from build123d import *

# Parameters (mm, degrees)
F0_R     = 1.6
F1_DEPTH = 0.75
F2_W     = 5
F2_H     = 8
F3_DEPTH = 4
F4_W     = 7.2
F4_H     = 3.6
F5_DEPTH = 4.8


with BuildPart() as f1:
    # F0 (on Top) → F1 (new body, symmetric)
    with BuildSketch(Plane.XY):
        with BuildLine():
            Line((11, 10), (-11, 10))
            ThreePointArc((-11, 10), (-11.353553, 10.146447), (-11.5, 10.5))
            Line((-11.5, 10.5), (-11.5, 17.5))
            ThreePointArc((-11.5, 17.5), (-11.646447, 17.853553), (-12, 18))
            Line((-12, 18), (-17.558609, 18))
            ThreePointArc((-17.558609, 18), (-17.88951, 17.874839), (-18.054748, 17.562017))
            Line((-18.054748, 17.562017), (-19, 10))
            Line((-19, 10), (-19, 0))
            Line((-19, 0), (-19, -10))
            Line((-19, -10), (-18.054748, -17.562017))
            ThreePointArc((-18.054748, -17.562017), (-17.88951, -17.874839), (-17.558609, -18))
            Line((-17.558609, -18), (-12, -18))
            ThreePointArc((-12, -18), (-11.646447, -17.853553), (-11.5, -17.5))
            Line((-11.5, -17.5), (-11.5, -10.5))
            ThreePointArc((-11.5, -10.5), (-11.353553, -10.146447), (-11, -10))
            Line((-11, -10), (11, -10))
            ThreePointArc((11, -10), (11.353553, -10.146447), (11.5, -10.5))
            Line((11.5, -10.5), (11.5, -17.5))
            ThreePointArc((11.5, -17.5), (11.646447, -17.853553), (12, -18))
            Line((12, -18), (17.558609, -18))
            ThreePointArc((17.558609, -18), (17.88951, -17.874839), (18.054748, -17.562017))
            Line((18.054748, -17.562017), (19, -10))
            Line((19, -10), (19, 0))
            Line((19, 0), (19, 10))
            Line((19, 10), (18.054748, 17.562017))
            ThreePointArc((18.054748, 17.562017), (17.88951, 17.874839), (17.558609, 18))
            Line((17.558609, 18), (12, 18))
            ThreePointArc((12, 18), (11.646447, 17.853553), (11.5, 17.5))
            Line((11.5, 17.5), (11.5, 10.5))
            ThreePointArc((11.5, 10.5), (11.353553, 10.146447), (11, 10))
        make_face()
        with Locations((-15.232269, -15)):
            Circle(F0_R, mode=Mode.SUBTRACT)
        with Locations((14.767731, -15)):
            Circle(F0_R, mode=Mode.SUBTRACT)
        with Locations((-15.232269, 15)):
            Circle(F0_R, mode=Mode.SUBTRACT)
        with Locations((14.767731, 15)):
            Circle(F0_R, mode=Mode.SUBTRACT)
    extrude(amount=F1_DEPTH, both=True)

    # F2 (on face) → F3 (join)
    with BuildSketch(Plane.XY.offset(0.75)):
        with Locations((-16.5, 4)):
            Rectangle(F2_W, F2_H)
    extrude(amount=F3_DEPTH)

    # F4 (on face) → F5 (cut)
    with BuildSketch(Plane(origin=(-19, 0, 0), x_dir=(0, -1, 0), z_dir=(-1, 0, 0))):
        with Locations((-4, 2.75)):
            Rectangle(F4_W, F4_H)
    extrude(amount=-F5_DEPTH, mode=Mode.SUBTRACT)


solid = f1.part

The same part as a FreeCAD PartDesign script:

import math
import FreeCAD as App
import Part
import Sketcher
from FreeCAD import Vector
Q = App.Units.Quantity

doc = App.newDocument("Part")
params = doc.addObject("Spreadsheet::Sheet", "Params")
for row, (alias, value) in enumerate([
    ("sketch1_diameter", "3.2 mm"),
    ("sketch1_radius", "0.500001 mm"),
    ("sketch1_width", "22 mm"),
    ("sketch1_height", "7 mm"),
    ("sketch1_height2", "20 mm"),
    ("pad1_length", "1.5 mm"),
    ("sketch2_width", "5 mm"),
    ("sketch2_height", "8 mm"),
    ("pad2_length", "4 mm"),
    ("sketch3_width", "7.2 mm"),
    ("sketch3_height", "3.6 mm"),
    ("pocket1_length", "4.8 mm"),
], start=1):
    params.set(f"A{row}", alias)
    params.set(f"B{row}", "=" + value)
    params.setAlias(f"B{row}", alias)

body = doc.addObject("PartDesign::Body", "Body")

# Sketch on XY plane
sketch1 = doc.addObject("Sketcher::SketchObject", "Sketch")
body.addObject(sketch1)
sketch1.AttachmentSupport = (doc.XY_Plane, [""])
sketch1.MapMode = "FlatFace"
sketch1.addGeometry(Part.LineSegment(Vector(11, 10, 0), Vector(-11, 10, 0)), False)
sketch1.addGeometry(Part.ArcOfCircle(Part.Circle(Vector(-10.999999, 10.500001, 0), Vector(0, 0, 1), 0.500001), math.radians(-179.999847), math.radians(-90.000153)), False)
sketch1.addGeometry(Part.LineSegment(Vector(-11.5, 10.5, 0), Vector(-11.5, 17.5, 0)), False)
sketch1.addGeometry(Part.ArcOfCircle(Part.Circle(Vector(-12.000001, 17.499999, 0), Vector(0, 0, 1), 0.500001), math.radians(0.000153), math.radians(89.999847)), False)
sketch1.addGeometry(Part.LineSegment(Vector(-12, 18, 0), Vector(-17.558609, 18, 0)), False)
sketch1.addGeometry(Part.ArcOfCircle(Part.Circle(Vector(-17.558608, 17.499999, 0), Vector(0, 0, 1), 0.500001), math.radians(90.000078), math.radians(172.874946)), False)
sketch1.addGeometry(Part.LineSegment(Vector(-18.054748, 17.562017, 0), Vector(-19, 10, 0)), False)
sketch1.addGeometry(Part.LineSegment(Vector(-19, 10, 0), Vector(-19, -10, 0)), False)
sketch1.addGeometry(Part.LineSegment(Vector(-19, -10, 0), Vector(-18.054748, -17.562017, 0)), False)
sketch1.addGeometry(Part.ArcOfCircle(Part.Circle(Vector(-17.558608, -17.499999, 0), Vector(0, 0, 1), 0.500001), math.radians(-172.874946), math.radians(-90.000078)), False)
sketch1.addGeometry(Part.LineSegment(Vector(-17.558609, -18, 0), Vector(-12, -18, 0)), False)
sketch1.addGeometry(Part.ArcOfCircle(Part.Circle(Vector(-12.000001, -17.499999, 0), Vector(0, 0, 1), 0.500001), math.radians(-89.999847), math.radians(-0.000153)), False)
sketch1.addGeometry(Part.LineSegment(Vector(-11.5, -17.5, 0), Vector(-11.5, -10.5, 0)), False)
sketch1.addGeometry(Part.ArcOfCircle(Part.Circle(Vector(-10.999999, -10.500001, 0), Vector(0, 0, 1), 0.500001), math.radians(90.000153), math.radians(179.999847)), False)
sketch1.addGeometry(Part.LineSegment(Vector(-11, -10, 0), Vector(11, -10, 0)), False)
sketch1.addGeometry(Part.ArcOfCircle(Part.Circle(Vector(10.999999, -10.500001, 0), Vector(0, 0, 1), 0.500001), math.radians(0.000153), math.radians(89.999847)), False)
sketch1.addGeometry(Part.LineSegment(Vector(11.5, -10.5, 0), Vector(11.5, -17.5, 0)), False)
sketch1.addGeometry(Part.ArcOfCircle(Part.Circle(Vector(12.000001, -17.499999, 0), Vector(0, 0, 1), 0.500001), math.radians(-179.999847), math.radians(-90.000153)), False)
sketch1.addGeometry(Part.LineSegment(Vector(12, -18, 0), Vector(17.558609, -18, 0)), False)
sketch1.addGeometry(Part.ArcOfCircle(Part.Circle(Vector(17.558608, -17.499999, 0), Vector(0, 0, 1), 0.500001), math.radians(-89.999922), math.radians(-7.125054)), False)
sketch1.addGeometry(Part.LineSegment(Vector(18.054748, -17.562017, 0), Vector(19, -10, 0)), False)
sketch1.addGeometry(Part.LineSegment(Vector(19, -10, 0), Vector(19, 10, 0)), False)
sketch1.addGeometry(Part.LineSegment(Vector(19, 10, 0), Vector(18.054748, 17.562017, 0)), False)
sketch1.addGeometry(Part.ArcOfCircle(Part.Circle(Vector(17.558608, 17.499999, 0), Vector(0, 0, 1), 0.500001), math.radians(7.125054), math.radians(89.999922)), False)
sketch1.addGeometry(Part.LineSegment(Vector(17.558609, 18, 0), Vector(12, 18, 0)), False)
sketch1.addGeometry(Part.ArcOfCircle(Part.Circle(Vector(12.000001, 17.499999, 0), Vector(0, 0, 1), 0.500001), math.radians(90.000153), math.radians(179.999847)), False)
sketch1.addGeometry(Part.LineSegment(Vector(11.5, 17.5, 0), Vector(11.5, 10.5, 0)), False)
sketch1.addGeometry(Part.ArcOfCircle(Part.Circle(Vector(10.999999, 10.500001, 0), Vector(0, 0, 1), 0.500001), math.radians(-89.999847), math.radians(-0.000153)), False)
sketch1.addGeometry(Part.Circle(Vector(-15.232269, -15, 0), Vector(0, 0, 1), 1.6), False)
sketch1.addGeometry(Part.Circle(Vector(14.767731, -15, 0), Vector(0, 0, 1), 1.6), False)
sketch1.addGeometry(Part.Circle(Vector(-15.232269, 15, 0), Vector(0, 0, 1), 1.6), False)
sketch1.addGeometry(Part.Circle(Vector(14.767731, 15, 0), Vector(0, 0, 1), 1.6), False)
sketch1.addConstraint(Sketcher.Constraint("Coincident", 0, 2, 1, 2))
sketch1.addConstraint(Sketcher.Constraint("Coincident", 1, 1, 2, 1))
sketch1.addConstraint(Sketcher.Constraint("Coincident", 2, 2, 3, 1))
sketch1.addConstraint(Sketcher.Constraint("Coincident", 3, 2, 4, 1))
sketch1.addConstraint(Sketcher.Constraint("Tangent", 4, 2, 5, 1))
sketch1.addConstraint(Sketcher.Constraint("Tangent", 5, 2, 6, 1))
sketch1.addConstraint(Sketcher.Constraint("Coincident", 6, 2, 7, 1))
sketch1.addConstraint(Sketcher.Constraint("Coincident", 7, 2, 8, 1))
sketch1.addConstraint(Sketcher.Constraint("Tangent", 8, 2, 9, 1))
sketch1.addConstraint(Sketcher.Constraint("Tangent", 9, 2, 10, 1))
sketch1.addConstraint(Sketcher.Constraint("Coincident", 10, 2, 11, 1))
sketch1.addConstraint(Sketcher.Constraint("Coincident", 11, 2, 12, 1))
sketch1.addConstraint(Sketcher.Constraint("Coincident", 12, 2, 13, 2))
sketch1.addConstraint(Sketcher.Constraint("Coincident", 13, 1, 14, 1))
sketch1.addConstraint(Sketcher.Constraint("Coincident", 14, 2, 15, 2))
sketch1.addConstraint(Sketcher.Constraint("Coincident", 15, 1, 16, 1))
sketch1.addConstraint(Sketcher.Constraint("Coincident", 16, 2, 17, 1))
sketch1.addConstraint(Sketcher.Constraint("Coincident", 17, 2, 18, 1))
sketch1.addConstraint(Sketcher.Constraint("Tangent", 18, 2, 19, 1))
sketch1.addConstraint(Sketcher.Constraint("Tangent", 19, 2, 20, 1))
sketch1.addConstraint(Sketcher.Constraint("Coincident", 20, 2, 21, 1))
sketch1.addConstraint(Sketcher.Constraint("Coincident", 21, 2, 22, 1))
sketch1.addConstraint(Sketcher.Constraint("Tangent", 22, 2, 23, 1))
sketch1.addConstraint(Sketcher.Constraint("Tangent", 23, 2, 24, 1))
sketch1.addConstraint(Sketcher.Constraint("Coincident", 24, 2, 25, 1))
sketch1.addConstraint(Sketcher.Constraint("Coincident", 25, 2, 26, 1))
sketch1.addConstraint(Sketcher.Constraint("Coincident", 26, 2, 27, 2))
sketch1.addConstraint(Sketcher.Constraint("Coincident", 27, 1, 0, 1))
sketch1.addConstraint(Sketcher.Constraint("Horizontal", 0))
sketch1.addConstraint(Sketcher.Constraint("Vertical", 2))
sketch1.addConstraint(Sketcher.Constraint("Horizontal", 4))
sketch1.addConstraint(Sketcher.Constraint("Vertical", 7))
sketch1.addConstraint(Sketcher.Constraint("Horizontal", 10))
sketch1.addConstraint(Sketcher.Constraint("Vertical", 12))
sketch1.addConstraint(Sketcher.Constraint("Horizontal", 14))
sketch1.addConstraint(Sketcher.Constraint("Vertical", 16))
sketch1.addConstraint(Sketcher.Constraint("Horizontal", 18))
sketch1.addConstraint(Sketcher.Constraint("Vertical", 21))
sketch1.addConstraint(Sketcher.Constraint("Horizontal", 24))
sketch1.addConstraint(Sketcher.Constraint("Vertical", 26))
sketch1.addConstraint(Sketcher.Constraint("Equal", 1, 3))
sketch1.addConstraint(Sketcher.Constraint("Equal", 3, 5))
sketch1.addConstraint(Sketcher.Constraint("Equal", 5, 9))
sketch1.addConstraint(Sketcher.Constraint("Equal", 9, 11))
sketch1.addConstraint(Sketcher.Constraint("Equal", 11, 13))
sketch1.addConstraint(Sketcher.Constraint("Equal", 13, 15))
sketch1.addConstraint(Sketcher.Constraint("Equal", 15, 17))
sketch1.addConstraint(Sketcher.Constraint("Equal", 17, 19))
sketch1.addConstraint(Sketcher.Constraint("Equal", 19, 23))
sketch1.addConstraint(Sketcher.Constraint("Equal", 23, 25))
sketch1.addConstraint(Sketcher.Constraint("Equal", 25, 27))
sketch1.addConstraint(Sketcher.Constraint("Equal", 28, 29))
sketch1.addConstraint(Sketcher.Constraint("Equal", 29, 30))
sketch1.addConstraint(Sketcher.Constraint("Equal", 30, 31))
sketch1.addConstraint(Sketcher.Constraint("Symmetric", 1, 3, 15, 3, -1, 1))
sketch1.addConstraint(Sketcher.Constraint("Symmetric", 5, 3, 19, 3, -1, 1))
sketch1.addConstraint(Sketcher.Constraint("Symmetric", 9, 3, 23, 3, -1, 1))
sketch1.addConstraint(Sketcher.Constraint("Symmetric", 6, 2, 20, 2, -1, 1))
sketch1.addConstraint(Sketcher.Constraint("Symmetric", 11, 2, 25, 2, -1, 1))
sketch1.addConstraint(Sketcher.Constraint("Symmetric", 11, 3, 17, 3, -2))
sketch1.addConstraint(Sketcher.Constraint("Symmetric", 8, 2, 19, 2, -2))
sketch1.addConstraint(Sketcher.Constraint("Symmetric", 28, 3, 30, 3, -1))
sketch1.addConstraint(Sketcher.Constraint("Symmetric", 29, 3, 31, 3, -1))
sketch1.addConstraint(Sketcher.Constraint("Parallel", 8, 22))
sketch1.addConstraint(Sketcher.Constraint("Horizontal", 28, 3, 29, 3))
sketch1.addConstraint(Sketcher.Constraint("Horizontal", 27, 3, 1, 1))
sketch1.addConstraint(Sketcher.Constraint("Horizontal", 25, 3, 2, 2))
sketch1.addConstraint(Sketcher.Constraint("Horizontal", 0, 2, 6, 2))
sketch1.addConstraint(Sketcher.Constraint("Horizontal", 19, 3, 11, 2))
sketch1.addConstraint(Sketcher.Constraint("Horizontal", 15, 3, 12, 2))
sketch1.addConstraint(Sketcher.Constraint("Horizontal", 12, 2, 15, 1))
sketch1.addConstraint(Sketcher.Constraint("Horizontal", 11, 2, 16, 2))
sketch1.addConstraint(Sketcher.Constraint("Horizontal", 1, 1, 26, 2))
sketch1.addConstraint(Sketcher.Constraint("Vertical", 13, 3, 0, 2))
sketch1.addConstraint(Sketcher.Constraint("Vertical", 11, 3, 3, 2))
sketch1.addConstraint(Sketcher.Constraint("Vertical", 3, 2, 10, 2))
sketch1.addConstraint(Sketcher.Constraint("Vertical", 0, 2, 13, 1))
sketch1.addConstraint(Sketcher.Constraint("Vertical", 27, 3, 14, 2))
sketch1.addConstraint(Sketcher.Constraint("Vertical", 25, 3, 17, 2))
sketch1.addConstraint(Sketcher.Constraint("Vertical", 17, 2, 24, 2))
sketch1.addConstraint(Sketcher.Constraint("Vertical", 14, 2, 27, 1))
sketch1.addConstraint(Sketcher.Constraint("Diameter", 28, Q("3.2 mm")))
sketch1.addConstraint(Sketcher.Constraint("Radius", 1, Q("0.500001 mm")))
sketch1.addConstraint(Sketcher.Constraint("DistanceX", 0, 2, 0, 1, Q("22 mm")))
sketch1.addConstraint(Sketcher.Constraint("DistanceY", 2, 1, 2, 2, Q("7 mm")))
sketch1.addConstraint(Sketcher.Constraint("DistanceY", 7, 2, 7, 1, Q("20 mm")))
sketch1.addConstraint(Sketcher.Constraint("DistanceY", 28, 3, -1, 1, Q("15 mm")))
sketch1.addConstraint(Sketcher.Constraint("DistanceX", 6, 2, -1, 1, Q("19 mm")))
sketch1.addConstraint(Sketcher.Constraint("DistanceX", 4, 2, 4, 1, Q("5.558609 mm")))
sketch1.addConstraint(Sketcher.Constraint("DistanceX", 28, 3, -1, 1, Q("15.232269 mm")))
sketch1.addConstraint(Sketcher.Constraint("DistanceX", -1, 1, 29, 3, Q("14.767731 mm")))
sketch1.setExpression("Constraints[81]", "Params.sketch1_diameter")
sketch1.setExpression("Constraints[82]", "Params.sketch1_radius")
sketch1.setExpression("Constraints[83]", "Params.sketch1_width")
sketch1.setExpression("Constraints[84]", "Params.sketch1_height")
sketch1.setExpression("Constraints[85]", "Params.sketch1_height2")
pad1 = doc.addObject("PartDesign::Pad", "Pad")
body.addObject(pad1)
pad1.Profile = sketch1
pad1.setExpression("Length", "Params.pad1_length")
pad1.Midplane = True

# Sketch on XY plane
sketch2 = doc.addObject("Sketcher::SketchObject", "Sketch001")
body.addObject(sketch2)
sketch2.AttachmentSupport = (doc.XY_Plane, [""])
sketch2.MapMode = "FlatFace"
sketch2.AttachmentOffset = App.Placement(Vector(0, 0, 0.75), App.Rotation())
sketch2.addGeometry(Part.LineSegment(Vector(-19, 8, 0), Vector(-19, 0, 0)), False)
sketch2.addGeometry(Part.LineSegment(Vector(-19, 0, 0), Vector(-14, 0, 0)), False)
sketch2.addGeometry(Part.LineSegment(Vector(-14, 0, 0), Vector(-14, 8, 0)), False)
sketch2.addGeometry(Part.LineSegment(Vector(-14, 8, 0), Vector(-19, 8, 0)), False)
sketch2.addConstraint(Sketcher.Constraint("Coincident", 0, 2, 1, 1))
sketch2.addConstraint(Sketcher.Constraint("Coincident", 1, 2, 2, 1))
sketch2.addConstraint(Sketcher.Constraint("Coincident", 2, 2, 3, 1))
sketch2.addConstraint(Sketcher.Constraint("Coincident", 3, 2, 0, 1))
sketch2.addConstraint(Sketcher.Constraint("Vertical", 0))
sketch2.addConstraint(Sketcher.Constraint("Horizontal", 1))
sketch2.addConstraint(Sketcher.Constraint("Vertical", 2))
sketch2.addConstraint(Sketcher.Constraint("Horizontal", 3))
sketch2.addConstraint(Sketcher.Constraint("PointOnObject", 0, 2, -1))
sketch2.addConstraint(Sketcher.Constraint("DistanceX", 1, 1, 1, 2, Q("5 mm")))
sketch2.addConstraint(Sketcher.Constraint("DistanceY", 0, 2, 0, 1, Q("8 mm")))
sketch2.addConstraint(Sketcher.Constraint("DistanceX", 0, 2, -1, 1, Q("19 mm")))
sketch2.setExpression("Constraints[9]", "Params.sketch2_width")
sketch2.setExpression("Constraints[10]", "Params.sketch2_height")
pad2 = doc.addObject("PartDesign::Pad", "Pad001")
body.addObject(pad2)
pad2.Profile = sketch2
pad2.setExpression("Length", "Params.pad2_length")

# Sketch on YZ plane
sketch3 = doc.addObject("Sketcher::SketchObject", "Sketch002")
body.addObject(sketch3)
sketch3.AttachmentSupport = (doc.YZ_Plane, [""])
sketch3.MapMode = "FlatFace"
sketch3.AttachmentOffset = App.Placement(Vector(0, 0, -19), App.Rotation())
sketch3.addGeometry(Part.LineSegment(Vector(7.6, 4.55, 0), Vector(7.6, 0.95, 0)), False)
sketch3.addGeometry(Part.LineSegment(Vector(7.6, 0.95, 0), Vector(0.4, 0.95, 0)), False)
sketch3.addGeometry(Part.LineSegment(Vector(0.4, 0.95, 0), Vector(0.4, 4.55, 0)), False)
sketch3.addGeometry(Part.LineSegment(Vector(0.4, 4.55, 0), Vector(7.6, 4.55, 0)), False)
sketch3.addConstraint(Sketcher.Constraint("Coincident", 0, 2, 1, 1))
sketch3.addConstraint(Sketcher.Constraint("Coincident", 1, 2, 2, 1))
sketch3.addConstraint(Sketcher.Constraint("Coincident", 2, 2, 3, 1))
sketch3.addConstraint(Sketcher.Constraint("Coincident", 3, 2, 0, 1))
sketch3.addConstraint(Sketcher.Constraint("Vertical", 0))
sketch3.addConstraint(Sketcher.Constraint("Horizontal", 1))
sketch3.addConstraint(Sketcher.Constraint("Vertical", 2))
sketch3.addConstraint(Sketcher.Constraint("Horizontal", 3))
sketch3.addConstraint(Sketcher.Constraint("DistanceX", 1, 2, 1, 1, Q("7.2 mm")))
sketch3.addConstraint(Sketcher.Constraint("DistanceY", 0, 2, 0, 1, Q("3.6 mm")))
sketch3.addConstraint(Sketcher.Constraint("DistanceX", -1, 1, 0, 2, Q("7.6 mm")))
sketch3.addConstraint(Sketcher.Constraint("DistanceY", -1, 1, 0, 2, Q("0.95 mm")))
sketch3.setExpression("Constraints[8]", "Params.sketch3_width")
sketch3.setExpression("Constraints[9]", "Params.sketch3_height")
pocket1 = doc.addObject("PartDesign::Pocket", "Pocket")
body.addObject(pocket1)
pocket1.Profile = sketch3
pocket1.setExpression("Length", "Params.pocket1_length")
pocket1.Reversed = True

doc.recompute()
